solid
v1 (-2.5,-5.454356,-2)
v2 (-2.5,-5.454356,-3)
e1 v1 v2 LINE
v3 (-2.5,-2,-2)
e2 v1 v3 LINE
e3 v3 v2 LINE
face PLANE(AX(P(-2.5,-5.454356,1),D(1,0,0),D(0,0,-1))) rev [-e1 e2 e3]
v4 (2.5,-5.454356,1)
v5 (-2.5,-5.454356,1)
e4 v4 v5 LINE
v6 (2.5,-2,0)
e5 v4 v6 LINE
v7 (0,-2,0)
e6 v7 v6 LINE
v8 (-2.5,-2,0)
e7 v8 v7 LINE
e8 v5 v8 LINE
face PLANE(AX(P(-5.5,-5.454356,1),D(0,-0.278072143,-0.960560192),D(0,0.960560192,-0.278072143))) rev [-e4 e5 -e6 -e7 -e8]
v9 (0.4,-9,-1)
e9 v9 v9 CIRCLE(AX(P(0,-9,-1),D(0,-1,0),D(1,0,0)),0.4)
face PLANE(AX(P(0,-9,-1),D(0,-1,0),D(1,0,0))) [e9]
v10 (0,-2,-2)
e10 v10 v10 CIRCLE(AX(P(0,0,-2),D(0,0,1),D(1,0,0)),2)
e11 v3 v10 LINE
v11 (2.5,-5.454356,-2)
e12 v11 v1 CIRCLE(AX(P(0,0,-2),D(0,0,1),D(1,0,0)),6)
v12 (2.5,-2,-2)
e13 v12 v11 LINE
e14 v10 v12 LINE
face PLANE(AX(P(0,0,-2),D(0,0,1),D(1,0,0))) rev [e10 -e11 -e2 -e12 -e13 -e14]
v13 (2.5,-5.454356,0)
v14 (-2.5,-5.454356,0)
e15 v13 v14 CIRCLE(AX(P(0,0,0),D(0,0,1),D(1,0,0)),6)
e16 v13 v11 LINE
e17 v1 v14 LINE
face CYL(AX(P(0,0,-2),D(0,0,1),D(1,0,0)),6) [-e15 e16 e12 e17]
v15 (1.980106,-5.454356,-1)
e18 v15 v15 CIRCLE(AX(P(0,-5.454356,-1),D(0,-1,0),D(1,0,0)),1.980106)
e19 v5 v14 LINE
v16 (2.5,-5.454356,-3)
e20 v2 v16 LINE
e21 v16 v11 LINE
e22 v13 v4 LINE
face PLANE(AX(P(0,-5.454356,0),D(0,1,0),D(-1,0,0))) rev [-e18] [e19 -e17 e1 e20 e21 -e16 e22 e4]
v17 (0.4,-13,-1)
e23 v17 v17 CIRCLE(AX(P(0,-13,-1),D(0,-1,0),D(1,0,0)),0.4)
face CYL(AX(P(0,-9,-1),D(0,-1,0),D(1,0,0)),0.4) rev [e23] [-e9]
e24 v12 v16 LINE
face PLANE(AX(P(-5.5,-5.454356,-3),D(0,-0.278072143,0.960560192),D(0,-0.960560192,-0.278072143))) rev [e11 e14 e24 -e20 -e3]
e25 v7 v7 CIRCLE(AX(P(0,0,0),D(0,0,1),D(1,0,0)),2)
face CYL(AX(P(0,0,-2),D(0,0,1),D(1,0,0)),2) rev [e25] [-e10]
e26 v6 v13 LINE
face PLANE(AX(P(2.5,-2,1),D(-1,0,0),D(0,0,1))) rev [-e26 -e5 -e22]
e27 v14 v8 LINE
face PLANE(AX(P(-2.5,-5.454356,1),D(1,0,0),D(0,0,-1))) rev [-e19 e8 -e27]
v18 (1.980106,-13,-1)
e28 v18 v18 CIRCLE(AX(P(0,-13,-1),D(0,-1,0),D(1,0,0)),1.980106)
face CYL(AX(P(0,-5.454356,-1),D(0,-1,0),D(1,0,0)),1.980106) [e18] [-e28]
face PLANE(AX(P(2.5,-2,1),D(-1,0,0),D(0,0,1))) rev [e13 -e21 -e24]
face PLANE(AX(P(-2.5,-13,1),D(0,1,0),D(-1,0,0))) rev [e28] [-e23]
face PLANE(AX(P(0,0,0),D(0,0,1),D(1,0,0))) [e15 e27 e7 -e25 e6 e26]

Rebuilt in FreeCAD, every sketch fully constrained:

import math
import FreeCAD as App
import Part
import Sketcher
from FreeCAD import Vector
Q = App.Units.Quantity

doc = App.newDocument("Part")
params = doc.addObject("Spreadsheet::Sheet", "Params")
for row, (alias, value) in enumerate([
    ("sketch1_diameter", "12 mm"),
    ("sketch1_radius", "2 mm"),
    ("pad1_length", "2 mm"),
    ("sketch2_width", "5 mm"),
    ("sketch2_height", "11 mm"),
    ("pad2_length", "1 mm"),
    ("pad2_length2", "3 mm"),
    ("sketch3_width", "5 mm"),
    ("sketch3_height", "4 mm"),
    ("pocket1_length", "7.545644 mm"),
    ("sketch4_height", "1 mm"),
    ("pocket2_length", "8 mm"),
    ("sketch5_diameter", "0.8 mm"),
    ("pocket3_length", "4 mm"),
], start=1):
    params.set(f"A{row}", alias)
    params.set(f"B{row}", "=" + value)
    params.setAlias(f"B{row}", alias)

body = doc.addObject("PartDesign::Body", "Body")

# Sketch on XY plane
sketch1 = body.newObject("Sketcher::SketchObject", "Sketch")
sketch1.AttachmentSupport = (doc.getObject("XY_Plane"), [""])
sketch1.MapMode = "FlatFace"
sketch1.addGeometry(Part.Circle(Vector(0, 0, 0), Vector(0, 0, 1), 6), False)
sketch1.addGeometry(Part.ArcOfCircle(Part.Circle(Vector(0, 0, 0), Vector(0, 0, 1), 2), math.radians(0), math.radians(90)), False)
sketch1.addGeometry(Part.ArcOfCircle(Part.Circle(Vector(0, 0, 0), Vector(0, 0, 1), 2), math.radians(-90), math.radians(0)), False)
sketch1.addGeometry(Part.ArcOfCircle(Part.Circle(Vector(0, 0, 0), Vector(0, 0, 1), 2), math.radians(-180), math.radians(-90)), False)
sketch1.addGeometry(Part.ArcOfCircle(Part.Circle(Vector(0, 0, 0), Vector(0, 0, 1), 2), math.radians(90), math.radians(180)), False)
sketch1.addConstraint(Sketcher.Constraint("Tangent", 1, 1, 2, 2))
sketch1.addConstraint(Sketcher.Constraint("Tangent", 2, 1, 3, 2))
sketch1.addConstraint(Sketcher.Constraint("Tangent", 3, 1, 4, 2))
sketch1.addConstraint(Sketcher.Constraint("Tangent", 4, 1, 1, 2))
sketch1.addConstraint(Sketcher.Constraint("Coincident", 0, 3, -1, 1))
sketch1.addConstraint(Sketcher.Constraint("Coincident", 1, 3, -1, 1))
sketch1.addConstraint(Sketcher.Constraint("Equal", 1, 2))
sketch1.addConstraint(Sketcher.Constraint("PointOnObject", 1, 1, -1))
sketch1.addConstraint(Sketcher.Constraint("PointOnObject", 2, 1, -2))
sketch1.addConstraint(Sketcher.Constraint("PointOnObject", 3, 1, -1))
sketch1.addConstraint(Sketcher.Constraint("PointOnObject", 4, 1, -2))
sketch1.addConstraint(Sketcher.Constraint("Diameter", 0, Q("12 mm")))
sketch1.addConstraint(Sketcher.Constraint("Radius", 1, Q("2 mm")))
sketch1.setExpression("Constraints[11]", "Params.sketch1_diameter")
sketch1.setExpression("Constraints[12]", "Params.sketch1_radius")
pad1 = body.newObject("PartDesign::Pad", "Pad")
pad1.Profile = sketch1
pad1.setExpression("Length", "Params.pad1_length")
pad1.Reversed = True

# Sketch on XY plane
sketch2 = body.newObject("Sketcher::SketchObject", "Sketch001")
sketch2.AttachmentSupport = (doc.getObject("XY_Plane"), [""])
sketch2.MapMode = "FlatFace"
sketch2.addGeometry(Part.LineSegment(Vector(-2, -13, 0), Vector(2, -13, 0)), False)
sketch2.addGeometry(Part.LineSegment(Vector(2, -13, 0), Vector(2, -2, 0)), False)
sketch2.addGeometry(Part.LineSegment(Vector(2, -2, 0), Vector(-2, -2, 0)), False)
sketch2.addGeometry(Part.LineSegment(Vector(-2, -2, 0), Vector(-2, -13, 0)), False)
sketch2.addConstraint(Sketcher.Constraint("Coincident", 0, 2, 1, 1))
sketch2.addConstraint(Sketcher.Constraint("Coincident", 1, 2, 2, 1))
sketch2.addConstraint(Sketcher.Constraint("Coincident", 2, 2, 3, 1))
sketch2.addConstraint(Sketcher.Constraint("Coincident", 3, 2, 0, 1))
sketch2.addConstraint(Sketcher.Constraint("Horizontal", 0))
sketch2.addConstraint(Sketcher.Constraint("Vertical", 1))
sketch2.addConstraint(Sketcher.Constraint("Horizontal", 2))
sketch2.addConstraint(Sketcher.Constraint("Vertical", 3))
sketch2.addConstraint(Sketcher.Constraint("DistanceX", 0, 1, 0, 2, Q("5 mm")))
sketch2.addConstraint(Sketcher.Constraint("DistanceY", 1, 1, 1, 2, Q("11 mm")))
sketch2.addConstraint(Sketcher.Constraint("DistanceY", 0, 2, -1, 1, Q("13 mm")))
sketch2.addConstraint(Sketcher.Constraint("DistanceX", -1, 1, 0, 2, Q("2.5 mm")))
sketch2.setExpression("Constraints[8]", "Params.sketch2_width")
sketch2.setExpression("Constraints[9]", "Params.sketch2_height")
pad2 = body.newObject("PartDesign::Pad", "Pad001")
pad2.Profile = sketch2
pad2.Type = "TwoLengths"
pad2.setExpression("Length", "Params.pad2_length")
pad2.setExpression("Length2", "Params.pad2_length2")

# Sketch on XZ plane
sketch3 = body.newObject("Sketcher::SketchObject", "Sketch002")
sketch3.AttachmentSupport = (doc.getObject("XZ_Plane"), [""])
sketch3.MapMode = "FlatFace"
sketch3.AttachmentOffset = App.Placement(Vector(0, 0, 13), App.Rotation())
sketch3.addGeometry(Part.LineSegment(Vector(-2.5, 1, 0), Vector(-2.5, -3, 0)), False)
sketch3.addGeometry(Part.LineSegment(Vector(-2.5, -3, 0), Vector(2.5, -3, 0)), False)
sketch3.addGeometry(Part.LineSegment(Vector(2.5, -3, 0), Vector(2.5, 1, 0)), False)
sketch3.addGeometry(Part.LineSegment(Vector(2.5, 1, 0), Vector(-2.5, 1, 0)), False)
sketch3.addGeometry(Part.Circle(Vector(0, -1, 0), Vector(0, 0, 1), 2), False)
sketch3.addConstraint(Sketcher.Constraint("Coincident", 0, 2, 1, 1))
sketch3.addConstraint(Sketcher.Constraint("Coincident", 1, 2, 2, 1))
sketch3.addConstraint(Sketcher.Constraint("Coincident", 2, 2, 3, 1))
sketch3.addConstraint(Sketcher.Constraint("Coincident", 3, 2, 0, 1))
sketch3.addConstraint(Sketcher.Constraint("Vertical", 0))
sketch3.addConstraint(Sketcher.Constraint("Horizontal", 1))
sketch3.addConstraint(Sketcher.Constraint("Vertical", 2))
sketch3.addConstraint(Sketcher.Constraint("Horizontal", 3))
sketch3.addConstraint(Sketcher.Constraint("PointOnObject", 4, 3, -2))
sketch3.addConstraint(Sketcher.Constraint("DistanceX", 1, 1, 1, 2, Q("5 mm")))
sketch3.addConstraint(Sketcher.Constraint("DistanceY", 0, 2, 0, 1, Q("4 mm")))
sketch3.addConstraint(Sketcher.Constraint("DistanceY", 4, 3, -1, 1, Q("1 mm")))
sketch3.addConstraint(Sketcher.Constraint("DistanceY", 0, 2, -1, 1, Q("3 mm")))
sketch3.addConstraint(Sketcher.Constraint("DistanceX", 0, 2, -1, 1, Q("2.5 mm")))
sketch3.addConstraint(Sketcher.Constraint("Diameter", 4, Q("3.960212 mm")))
sketch3.setExpression("Constraints[9]", "Params.sketch3_width")
sketch3.setExpression("Constraints[10]", "Params.sketch3_height")
pocket1 = body.newObject("PartDesign::Pocket", "Pocket")
pocket1.Profile = sketch3
pocket1.setExpression("Length", "Params.pocket1_length")

# Sketch on YZ plane
sketch4 = body.newObject("Sketcher::SketchObject", "Sketch003")
sketch4.AttachmentSupport = (doc.getObject("YZ_Plane"), [""])
sketch4.MapMode = "FlatFace"
sketch4.AttachmentOffset = App.Placement(Vector(0, 0, 2.5), App.Rotation())
sketch4.addGeometry(Part.LineSegment(Vector(-5.5, 1, 0), Vector(-2, 0, 0)), False)
sketch4.addGeometry(Part.LineSegment(Vector(-2, 0, 0), Vector(-2, 1, 0)), False)
sketch4.addGeometry(Part.LineSegment(Vector(-2, 1, 0), Vector(-5.5, 1, 0)), False)
sketch4.addGeometry(Part.LineSegment(Vector(-2, -2, 0), Vector(-5.5, -3, 0)), False)
sketch4.addGeometry(Part.LineSegment(Vector(-5.5, -3, 0), Vector(-2, -3, 0)), False)
sketch4.addGeometry(Part.LineSegment(Vector(-2, -3, 0), Vector(-2, -2, 0)), False)
sketch4.addConstraint(Sketcher.Constraint("Coincident", 0, 2, 1, 1))
sketch4.addConstraint(Sketcher.Constraint("Coincident", 1, 2, 2, 1))
sketch4.addConstraint(Sketcher.Constraint("Coincident", 2, 2, 0, 1))
sketch4.addConstraint(Sketcher.Constraint("Coincident", 3, 2, 4, 1))
sketch4.addConstraint(Sketcher.Constraint("Coincident", 4, 2, 5, 1))
sketch4.addConstraint(Sketcher.Constraint("Coincident", 5, 2, 3, 1))
sketch4.addConstraint(Sketcher.Constraint("Vertical", 1))
sketch4.addConstraint(Sketcher.Constraint("Horizontal", 2))
sketch4.addConstraint(Sketcher.Constraint("Horizontal", 4))
sketch4.addConstraint(Sketcher.Constraint("Vertical", 5))
sketch4.addConstraint(Sketcher.Constraint("PointOnObject", 0, 2, -1))
sketch4.addConstraint(Sketcher.Constraint("Vertical", 2, 2, 3, 2))
sketch4.addConstraint(Sketcher.Constraint("Vertical", 1, 2, 4, 2))
sketch4.addConstraint(Sketcher.Constraint("Equal", 1, 5))
sketch4.addConstraint(Sketcher.Constraint("DistanceY", 1, 1, 1, 2, Q("1 mm")))
sketch4.addConstraint(Sketcher.Constraint("DistanceX", 0, 2, -1, 1, Q("2 mm")))
sketch4.addConstraint(Sketcher.Constraint("DistanceY", 3, 2, -1, 1, Q("3 mm")))
sketch4.addConstraint(Sketcher.Constraint("Distance", 0, Q("3.596189 mm")))
sketch4.setExpression("Constraints[14]", "Params.sketch4_height")
pocket2 = body.newObject("PartDesign::Pocket", "Pocket001")
pocket2.Profile = sketch4
pocket2.setExpression("Length", "Params.pocket2_length")

# Sketch on XZ plane
sketch5 = body.newObject("Sketcher::SketchObject", "Sketch004")
sketch5.AttachmentSupport = (doc.getObject("XZ_Plane"), [""])
sketch5.MapMode = "FlatFace"
sketch5.AttachmentOffset = App.Placement(Vector(0, 0, 13), App.Rotation())
sketch5.addGeometry(Part.Circle(Vector(0, -1, 0), Vector(0, 0, 1), 0.4), False)
sketch5.addConstraint(Sketcher.Constraint("PointOnObject", 0, 3, -2))
sketch5.addConstraint(Sketcher.Constraint("Diameter", 0, Q("0.8 mm")))
sketch5.addConstraint(Sketcher.Constraint("DistanceY", 0, 3, -1, 1, Q("1 mm")))
sketch5.setExpression("Constraints[1]", "Params.sketch5_diameter")
pocket3 = body.newObject("PartDesign::Pocket", "Pocket002")
pocket3.Profile = sketch5
pocket3.setExpression("Length", "Params.pocket3_length")

doc.recompute()
